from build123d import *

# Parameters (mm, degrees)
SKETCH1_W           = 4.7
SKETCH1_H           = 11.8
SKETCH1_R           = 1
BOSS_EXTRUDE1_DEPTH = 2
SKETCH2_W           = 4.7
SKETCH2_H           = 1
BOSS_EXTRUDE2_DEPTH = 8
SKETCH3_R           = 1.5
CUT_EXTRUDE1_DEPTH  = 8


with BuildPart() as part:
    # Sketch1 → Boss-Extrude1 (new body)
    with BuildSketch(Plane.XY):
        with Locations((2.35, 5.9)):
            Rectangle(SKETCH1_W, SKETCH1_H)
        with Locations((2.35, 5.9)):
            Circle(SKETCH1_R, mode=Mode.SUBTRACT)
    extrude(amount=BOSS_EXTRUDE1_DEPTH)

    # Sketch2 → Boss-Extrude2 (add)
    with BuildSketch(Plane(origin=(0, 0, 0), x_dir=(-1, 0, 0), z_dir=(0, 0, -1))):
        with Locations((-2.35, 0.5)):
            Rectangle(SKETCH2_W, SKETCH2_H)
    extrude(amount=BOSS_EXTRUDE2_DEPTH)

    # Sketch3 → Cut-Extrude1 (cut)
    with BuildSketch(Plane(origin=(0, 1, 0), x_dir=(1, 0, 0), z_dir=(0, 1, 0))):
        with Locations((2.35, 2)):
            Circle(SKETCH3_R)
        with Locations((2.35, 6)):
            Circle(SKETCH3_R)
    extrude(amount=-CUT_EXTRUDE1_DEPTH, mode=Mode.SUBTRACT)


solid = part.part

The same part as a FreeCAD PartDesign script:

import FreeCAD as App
import Part
import Sketcher

V = App.Vector
Q = App.Units.Quantity

doc = App.newDocument("Part")
body = doc.addObject("PartDesign::Body", "Body")

sketch1 = body.newObject("Sketcher::SketchObject", "Sketch")
sketch1.AttachmentSupport = (doc.getObject("XY_Plane"), [""])
sketch1.MapMode = "FlatFace"
sketch1.addGeometry(Part.LineSegment(V(0, 11.8, 0), V(0, 0, 0)), False)
sketch1.addGeometry(Part.LineSegment(V(0, 0, 0), V(4.7, 0, 0)), False)
sketch1.addGeometry(Part.LineSegment(V(4.7, 0, 0), V(4.7, 11.8, 0)), False)
sketch1.addGeometry(Part.LineSegment(V(4.7, 11.8, 0), V(0, 11.8, 0)), False)
sketch1.addGeometry(Part.Circle(V(2.35, 5.9, 0), V(0, 0, 1), 1), False)
sketch1.addConstraint(Sketcher.Constraint("Coincident", 0, 2, 1, 1))
sketch1.addConstraint(Sketcher.Constraint("Coincident", 1, 2, 2, 1))
sketch1.addConstraint(Sketcher.Constraint("Coincident", 2, 2, 3, 1))
sketch1.addConstraint(Sketcher.Constraint("Coincident", 3, 2, 0, 1))
sketch1.addConstraint(Sketcher.Constraint("Vertical", 0))
sketch1.addConstraint(Sketcher.Constraint("Horizontal", 1))
sketch1.addConstraint(Sketcher.Constraint("Vertical", 2))
sketch1.addConstraint(Sketcher.Constraint("Horizontal", 3))
sketch1.addConstraint(Sketcher.Constraint("Coincident", 0, 2, -1, 1))
sketch1.addConstraint(Sketcher.Constraint("Diameter", 4, Q("2 mm")))
sketch1.addConstraint(Sketcher.Constraint("DistanceX", 1, 1, 1, 2, Q("4.7 mm")))
sketch1.addConstraint(Sketcher.Constraint("DistanceY", 0, 2, 0, 1, Q("11.8 mm")))
sketch1.addConstraint(Sketcher.Constraint("DistanceY", -1, 1, 4, 3, Q("5.9 mm")))
sketch1.addConstraint(Sketcher.Constraint("DistanceX", -1, 1, 4, 3, Q("2.35 mm")))
pad1 = body.newObject("PartDesign::Pad", "Pad")
pad1.Profile = sketch1
pad1.Length = 2

sketch2 = body.newObject("Sketcher::SketchObject", "Sketch001")
sketch2.AttachmentSupport = (doc.getObject("XY_Plane"), [""])
sketch2.MapMode = "FlatFace"
sketch2.addGeometry(Part.LineSegment(V(4.7, 1, 0), V(4.7, 0, 0)), False)
sketch2.addGeometry(Part.LineSegment(V(4.7, 0, 0), V(0, 0, 0)), False)
sketch2.addGeometry(Part.LineSegment(V(0, 0, 0), V(0, 1, 0)), False)
sketch2.addGeometry(Part.LineSegment(V(0, 1, 0), V(4.7, 1, 0)), False)
sketch2.addConstraint(Sketcher.Constraint("Coincident", 0, 2, 1, 1))
sketch2.addConstraint(Sketcher.Constraint("Coincident", 1, 2, 2, 1))
sketch2.addConstraint(Sketcher.Constraint("Coincident", 2, 2, 3, 1))
sketch2.addConstraint(Sketcher.Constraint("Coincident", 3, 2, 0, 1))
sketch2.addConstraint(Sketcher.Constraint("Vertical", 0))
sketch2.addConstraint(Sketcher.Constraint("Horizontal", 1))
sketch2.addConstraint(Sketcher.Constraint("Vertical", 2))
sketch2.addConstraint(Sketcher.Constraint("Horizontal", 3))
sketch2.addConstraint(Sketcher.Constraint("Coincident", 1, 2, -1, 1))
sketch2.addConstraint(Sketcher.Constraint("DistanceY", 0, 2, 0, 1, Q("1 mm")))
sketch2.addConstraint(Sketcher.Constraint("DistanceX", 1, 2, 1, 1, Q("4.7 mm")))
pad2 = body.newObject("PartDesign::Pad", "Pad001")
pad2.Profile = sketch2
pad2.Length = 8
pad2.Reversed = True

sketch3 = body.newObject("Sketcher::SketchObject", "Sketch002")
sketch3.AttachmentSupport = (doc.getObject("XZ_Plane"), [""])
sketch3.MapMode = "FlatFace"
sketch3.AttachmentOffset = App.Placement(V(0, 0, -1), App.Rotation())
sketch3.addGeometry(Part.Circle(V(2.35, -2, 0), V(0, 0, 1), 1.5), False)
sketch3.addGeometry(Part.Circle(V(2.35, -6, 0), V(0, 0, 1), 1.5), False)
sketch3.addConstraint(Sketcher.Constraint("Equal", 0, 1))
sketch3.addConstraint(Sketcher.Constraint("Vertical", 0, 3, 1, 3))
sketch3.addConstraint(Sketcher.Constraint("Diameter", 0, Q("3 mm")))
sketch3.addConstraint(Sketcher.Constraint("DistanceY", 0, 3, -1, 1, Q("2 mm")))
sketch3.addConstraint(Sketcher.Constraint("DistanceY", 1, 3, -1, 1, Q("6 mm")))
sketch3.addConstraint(Sketcher.Constraint("DistanceX", -1, 1, 0, 3, Q("2.35 mm")))
pocket1 = body.newObject("PartDesign::Pocket", "Pocket")
pocket1.Profile = sketch3
pocket1.Length = 8
pocket1.Reversed = True

doc.recompute()
